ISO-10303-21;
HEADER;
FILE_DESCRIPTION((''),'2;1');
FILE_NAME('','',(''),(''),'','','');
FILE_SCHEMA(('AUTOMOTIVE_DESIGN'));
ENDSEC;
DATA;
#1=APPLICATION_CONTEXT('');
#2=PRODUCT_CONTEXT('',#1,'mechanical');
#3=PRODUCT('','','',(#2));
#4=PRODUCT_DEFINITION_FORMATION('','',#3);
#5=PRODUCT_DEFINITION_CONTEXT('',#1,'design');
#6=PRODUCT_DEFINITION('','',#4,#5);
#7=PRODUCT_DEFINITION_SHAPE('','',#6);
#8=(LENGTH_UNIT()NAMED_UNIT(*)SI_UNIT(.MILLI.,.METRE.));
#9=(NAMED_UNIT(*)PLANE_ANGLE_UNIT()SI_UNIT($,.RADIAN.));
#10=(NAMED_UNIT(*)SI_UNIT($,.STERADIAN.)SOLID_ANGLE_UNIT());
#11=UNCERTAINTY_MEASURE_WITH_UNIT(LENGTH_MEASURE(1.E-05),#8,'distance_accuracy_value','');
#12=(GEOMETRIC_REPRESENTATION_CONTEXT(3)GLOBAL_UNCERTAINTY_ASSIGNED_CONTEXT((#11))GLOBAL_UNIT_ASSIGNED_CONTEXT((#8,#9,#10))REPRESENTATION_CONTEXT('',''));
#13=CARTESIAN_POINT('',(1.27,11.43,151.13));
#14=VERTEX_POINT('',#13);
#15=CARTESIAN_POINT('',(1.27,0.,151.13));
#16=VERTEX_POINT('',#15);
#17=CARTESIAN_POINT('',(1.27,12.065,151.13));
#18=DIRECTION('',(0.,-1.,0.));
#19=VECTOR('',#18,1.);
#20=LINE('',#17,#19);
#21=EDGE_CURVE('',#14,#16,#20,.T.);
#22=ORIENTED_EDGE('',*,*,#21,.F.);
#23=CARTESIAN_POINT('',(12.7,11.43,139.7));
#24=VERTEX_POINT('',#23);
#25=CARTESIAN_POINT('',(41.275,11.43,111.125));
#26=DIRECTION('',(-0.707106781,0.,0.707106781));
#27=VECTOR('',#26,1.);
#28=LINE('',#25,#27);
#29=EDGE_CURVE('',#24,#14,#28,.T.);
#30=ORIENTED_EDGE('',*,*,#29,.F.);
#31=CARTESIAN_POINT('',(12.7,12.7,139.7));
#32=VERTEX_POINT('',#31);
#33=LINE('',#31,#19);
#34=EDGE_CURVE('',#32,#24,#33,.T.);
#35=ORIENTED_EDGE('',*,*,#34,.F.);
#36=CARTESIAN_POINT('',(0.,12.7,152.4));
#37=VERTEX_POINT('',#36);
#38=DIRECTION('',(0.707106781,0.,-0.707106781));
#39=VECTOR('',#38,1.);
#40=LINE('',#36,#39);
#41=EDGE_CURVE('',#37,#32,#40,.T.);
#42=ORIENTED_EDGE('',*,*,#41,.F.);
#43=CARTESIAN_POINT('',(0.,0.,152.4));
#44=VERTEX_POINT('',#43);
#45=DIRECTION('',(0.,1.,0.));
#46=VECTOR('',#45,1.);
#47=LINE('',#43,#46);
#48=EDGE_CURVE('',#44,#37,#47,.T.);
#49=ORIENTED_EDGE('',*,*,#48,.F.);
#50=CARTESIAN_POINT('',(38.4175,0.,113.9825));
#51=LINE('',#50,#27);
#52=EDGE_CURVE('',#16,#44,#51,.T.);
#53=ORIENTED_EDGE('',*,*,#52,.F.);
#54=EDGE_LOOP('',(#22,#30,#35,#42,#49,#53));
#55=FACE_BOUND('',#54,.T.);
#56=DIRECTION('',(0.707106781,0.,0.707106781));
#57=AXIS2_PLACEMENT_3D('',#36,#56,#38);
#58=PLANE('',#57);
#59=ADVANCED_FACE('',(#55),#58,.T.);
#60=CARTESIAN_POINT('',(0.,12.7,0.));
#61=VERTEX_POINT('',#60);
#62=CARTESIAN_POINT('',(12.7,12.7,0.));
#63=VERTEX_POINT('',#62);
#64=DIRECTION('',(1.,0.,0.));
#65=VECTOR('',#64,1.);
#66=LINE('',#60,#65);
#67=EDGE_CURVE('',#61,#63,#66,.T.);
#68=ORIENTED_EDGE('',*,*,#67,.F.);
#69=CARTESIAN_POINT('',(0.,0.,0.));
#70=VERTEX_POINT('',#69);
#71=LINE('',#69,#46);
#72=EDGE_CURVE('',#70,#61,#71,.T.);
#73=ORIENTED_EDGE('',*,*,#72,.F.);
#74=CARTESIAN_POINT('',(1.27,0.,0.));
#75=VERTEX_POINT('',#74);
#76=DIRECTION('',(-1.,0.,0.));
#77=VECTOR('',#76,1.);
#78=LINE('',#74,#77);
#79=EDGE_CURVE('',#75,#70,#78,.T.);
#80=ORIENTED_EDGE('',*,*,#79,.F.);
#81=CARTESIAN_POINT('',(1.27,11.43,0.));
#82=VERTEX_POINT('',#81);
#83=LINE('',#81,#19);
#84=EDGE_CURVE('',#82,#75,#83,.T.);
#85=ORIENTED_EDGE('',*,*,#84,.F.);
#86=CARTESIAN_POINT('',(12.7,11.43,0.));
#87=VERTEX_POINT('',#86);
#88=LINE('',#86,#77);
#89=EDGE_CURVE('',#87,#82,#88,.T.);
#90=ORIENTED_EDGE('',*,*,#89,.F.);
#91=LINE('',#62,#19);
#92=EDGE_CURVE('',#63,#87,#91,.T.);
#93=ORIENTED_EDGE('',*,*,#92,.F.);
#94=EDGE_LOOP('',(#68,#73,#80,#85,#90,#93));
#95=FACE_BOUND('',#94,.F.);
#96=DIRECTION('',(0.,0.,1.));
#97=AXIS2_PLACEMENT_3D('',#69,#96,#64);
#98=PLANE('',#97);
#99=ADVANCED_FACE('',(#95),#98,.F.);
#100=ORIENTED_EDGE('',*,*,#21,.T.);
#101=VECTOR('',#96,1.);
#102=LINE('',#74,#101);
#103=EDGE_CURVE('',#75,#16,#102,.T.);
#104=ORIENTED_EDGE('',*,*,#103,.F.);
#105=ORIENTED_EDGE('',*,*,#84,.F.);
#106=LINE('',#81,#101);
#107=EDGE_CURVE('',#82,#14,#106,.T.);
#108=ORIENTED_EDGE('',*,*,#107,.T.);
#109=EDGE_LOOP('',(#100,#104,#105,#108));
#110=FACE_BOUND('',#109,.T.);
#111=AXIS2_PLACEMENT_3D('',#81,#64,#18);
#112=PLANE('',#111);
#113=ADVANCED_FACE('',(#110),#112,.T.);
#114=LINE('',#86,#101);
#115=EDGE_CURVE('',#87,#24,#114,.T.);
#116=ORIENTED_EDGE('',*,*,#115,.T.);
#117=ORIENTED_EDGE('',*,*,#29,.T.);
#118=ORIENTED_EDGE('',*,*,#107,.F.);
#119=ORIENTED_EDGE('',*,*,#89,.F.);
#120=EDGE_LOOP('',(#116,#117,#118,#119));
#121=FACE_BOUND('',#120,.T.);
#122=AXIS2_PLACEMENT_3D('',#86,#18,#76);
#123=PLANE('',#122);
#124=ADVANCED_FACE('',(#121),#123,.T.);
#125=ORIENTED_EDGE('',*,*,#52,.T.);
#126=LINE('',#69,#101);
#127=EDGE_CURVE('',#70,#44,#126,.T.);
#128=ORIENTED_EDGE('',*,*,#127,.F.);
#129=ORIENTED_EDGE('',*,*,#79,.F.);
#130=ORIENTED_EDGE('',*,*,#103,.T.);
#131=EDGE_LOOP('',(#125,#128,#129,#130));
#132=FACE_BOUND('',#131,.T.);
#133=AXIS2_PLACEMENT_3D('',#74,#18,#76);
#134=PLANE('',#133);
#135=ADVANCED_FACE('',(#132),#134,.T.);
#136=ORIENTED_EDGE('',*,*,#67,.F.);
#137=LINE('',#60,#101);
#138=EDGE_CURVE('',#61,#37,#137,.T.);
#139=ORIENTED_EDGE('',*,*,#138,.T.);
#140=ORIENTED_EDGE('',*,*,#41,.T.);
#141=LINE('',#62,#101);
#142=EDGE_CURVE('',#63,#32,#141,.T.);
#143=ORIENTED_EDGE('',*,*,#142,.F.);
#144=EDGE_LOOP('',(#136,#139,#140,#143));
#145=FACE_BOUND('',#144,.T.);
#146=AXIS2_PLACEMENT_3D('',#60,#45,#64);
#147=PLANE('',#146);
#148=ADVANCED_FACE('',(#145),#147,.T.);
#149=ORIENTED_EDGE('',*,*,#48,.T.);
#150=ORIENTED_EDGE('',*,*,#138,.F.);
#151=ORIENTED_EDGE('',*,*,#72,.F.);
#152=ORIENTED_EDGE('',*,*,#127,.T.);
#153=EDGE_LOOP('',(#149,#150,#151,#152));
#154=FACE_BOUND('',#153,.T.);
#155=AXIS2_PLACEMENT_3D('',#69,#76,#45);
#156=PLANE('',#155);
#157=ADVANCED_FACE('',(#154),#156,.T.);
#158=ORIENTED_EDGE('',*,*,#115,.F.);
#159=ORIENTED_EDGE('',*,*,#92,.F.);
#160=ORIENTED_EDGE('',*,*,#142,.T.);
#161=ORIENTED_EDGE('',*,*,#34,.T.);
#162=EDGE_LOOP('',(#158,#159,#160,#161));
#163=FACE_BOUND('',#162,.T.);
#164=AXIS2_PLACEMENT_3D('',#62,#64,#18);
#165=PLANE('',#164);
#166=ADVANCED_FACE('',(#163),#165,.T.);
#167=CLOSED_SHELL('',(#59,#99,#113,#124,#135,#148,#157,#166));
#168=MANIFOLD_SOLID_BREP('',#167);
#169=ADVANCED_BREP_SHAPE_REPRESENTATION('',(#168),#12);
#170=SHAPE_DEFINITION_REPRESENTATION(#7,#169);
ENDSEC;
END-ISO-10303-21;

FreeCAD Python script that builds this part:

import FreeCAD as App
import Part
import Sketcher

V = App.Vector
Q = App.Units.Quantity


def add_polygon(sketch, points):
    """Adds a closed chain of lines whose ends are joined by coincident constraints."""
    first, n = sketch.GeometryCount, len(points)
    for a, b in zip(points, points[1:] + points[:1]):
        sketch.addGeometry(Part.LineSegment(App.Vector(*a, 0), App.Vector(*b, 0)), False)
    for i in range(n):
        sketch.addConstraint(Sketcher.Constraint("Coincident", first + i, 2, first + (i + 1) % n, 1))

doc = App.newDocument("Part")
body = doc.addObject("PartDesign::Body", "Body")

# Sketch on XY plane
sketch1 = body.newObject("Sketcher::SketchObject", "Sketch")
sketch1.AttachmentSupport = (doc.getObject("XY_Plane"), [""])
sketch1.MapMode = "FlatFace"
add_polygon(sketch1, [(0, 12.7), (0, 0), (1.3, 0), (1.3, 11.4), (12.7, 11.4), (12.7, 12.7)])  # lines 0-5
sketch1.addConstraint([
    Sketcher.Constraint("Vertical", 0),
    Sketcher.Constraint("Horizontal", 1),
    Sketcher.Constraint("Vertical", 2),
    Sketcher.Constraint("Horizontal", 3),
    Sketcher.Constraint("Vertical", 4),
    Sketcher.Constraint("Horizontal", 5),
    Sketcher.Constraint("Coincident", 0, 2, -1, 1),
    Sketcher.Constraint("Equal", 5, 0),
    Sketcher.Constraint("Equal", 3, 2),
    Sketcher.Constraint("DistanceX", 5, 2, 5, 1, Q("0.5 in")),
    Sketcher.Constraint("DistanceX", 1, 1, 1, 2, Q("0.05 in")),
])
pad1 = body.newObject("PartDesign::Pad", "Pad")
pad1.Profile = sketch1
pad1.Length = Q("6 in")

# Sketch on XZ plane
sketch2 = body.newObject("Sketcher::SketchObject", "Sketch001")
sketch2.AttachmentSupport = (doc.getObject("XZ_Plane"), [""])
sketch2.MapMode = "FlatFace"
sketch2.AttachmentOffset = App.Placement(V(0, 0, -0.5 * 25.4), App.Rotation())
add_polygon(sketch2, [(0, 152), (13, 152), (13, 140)])  # lines 0-2
sketch2.addConstraint([
    Sketcher.Constraint("Horizontal", 0),
    Sketcher.Constraint("Vertical", 1),
    Sketcher.Constraint("PointOnObject", 2, 2, -2),
    Sketcher.Constraint("Equal", 0, 1),
    Sketcher.Constraint("DistanceX", 0, 1, 0, 2, Q("0.5 in")),
    Sketcher.Constraint("DistanceY", -1, 1, 0, 2, Q("6 in")),
])
pocket1 = body.newObject("PartDesign::Pocket", "Pocket")
pocket1.Profile = sketch2
pocket1.Length = Q("1 in")
pocket1.Reversed = True

doc.recompute()
